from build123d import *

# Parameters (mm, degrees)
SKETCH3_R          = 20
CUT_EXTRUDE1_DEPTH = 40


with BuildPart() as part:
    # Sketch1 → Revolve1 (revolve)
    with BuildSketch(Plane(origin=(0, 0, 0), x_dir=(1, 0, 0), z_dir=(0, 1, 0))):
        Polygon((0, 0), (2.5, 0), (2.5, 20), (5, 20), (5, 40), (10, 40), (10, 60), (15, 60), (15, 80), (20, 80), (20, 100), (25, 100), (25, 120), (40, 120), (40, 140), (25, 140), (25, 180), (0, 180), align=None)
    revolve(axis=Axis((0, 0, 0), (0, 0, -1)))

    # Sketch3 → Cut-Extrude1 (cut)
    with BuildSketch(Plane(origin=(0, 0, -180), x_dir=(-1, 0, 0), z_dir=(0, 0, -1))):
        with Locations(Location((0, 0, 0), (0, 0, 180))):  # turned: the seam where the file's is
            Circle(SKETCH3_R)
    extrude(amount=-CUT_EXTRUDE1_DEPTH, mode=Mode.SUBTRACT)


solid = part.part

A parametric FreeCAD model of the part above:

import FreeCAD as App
import Part
import Sketcher
from FreeCAD import Vector


def add_polygon(sketch, points):
    """Adds a closed chain of lines whose ends are joined by coincident constraints."""
    first, n = sketch.GeometryCount, len(points)
    for a, b in zip(points, points[1:] + points[:1]):
        sketch.addGeometry(Part.LineSegment(App.Vector(*a, 0), App.Vector(*b, 0)), False)
    for i in range(n):
        sketch.addConstraint(Sketcher.Constraint("Coincident", first + i, 2, first + (i + 1) % n, 1))

doc = App.newDocument("Part")
body = doc.addObject("PartDesign::Body", "Body")

sketch1 = doc.addObject("Sketcher::SketchObject", "Sketch")
body.addObject(sketch1)
sketch1.AttachmentSupport = (doc.XZ_Plane, [""])
sketch1.MapMode = "FlatFace"
add_polygon(sketch1, [(0, 0), (2.5, 0), (2.5, -20), (5, -20), (5, -40), (10, -40), (10, -60), (15, -60), (15, -80), (20, -80), (20, -100), (25, -100), (25, -120), (40, -120), (40, -140), (25, -140), (25, -180), (0, -180)])
sketch1.addConstraint(Sketcher.Constraint("Horizontal", 0))
sketch1.addConstraint(Sketcher.Constraint("Vertical", 1))
sketch1.addConstraint(Sketcher.Constraint("Horizontal", 2))
sketch1.addConstraint(Sketcher.Constraint("Vertical", 3))
sketch1.addConstraint(Sketcher.Constraint("Horizontal", 4))
sketch1.addConstraint(Sketcher.Constraint("Vertical", 5))
sketch1.addConstraint(Sketcher.Constraint("Horizontal", 6))
sketch1.addConstraint(Sketcher.Constraint("Vertical", 7))
sketch1.addConstraint(Sketcher.Constraint("Horizontal", 8))
sketch1.addConstraint(Sketcher.Constraint("Vertical", 9))
sketch1.addConstraint(Sketcher.Constraint("Horizontal", 10))
sketch1.addConstraint(Sketcher.Constraint("Vertical", 11))
sketch1.addConstraint(Sketcher.Constraint("Horizontal", 12))
sketch1.addConstraint(Sketcher.Constraint("Vertical", 13))
sketch1.addConstraint(Sketcher.Constraint("Horizontal", 14))
sketch1.addConstraint(Sketcher.Constraint("Vertical", 15))
sketch1.addConstraint(Sketcher.Constraint("Horizontal", 16))
sketch1.addConstraint(Sketcher.Constraint("Vertical", 17))
sketch1.addConstraint(Sketcher.Constraint("Coincident", 17, 2, -1, 1))
sketch1.addConstraint(Sketcher.Constraint("Vertical", 11, 2, 14, 2))
sketch1.addConstraint(Sketcher.Constraint("Equal", 0, 2))
sketch1.addConstraint(Sketcher.Constraint("Equal", 4, 6))
sketch1.addConstraint(Sketcher.Constraint("Equal", 6, 8))
sketch1.addConstraint(Sketcher.Constraint("Equal", 8, 10))
sketch1.addConstraint(Sketcher.Constraint("Equal", 1, 3))
sketch1.addConstraint(Sketcher.Constraint("Equal", 3, 5))
sketch1.addConstraint(Sketcher.Constraint("Equal", 5, 7))
sketch1.addConstraint(Sketcher.Constraint("Equal", 7, 9))
sketch1.addConstraint(Sketcher.Constraint("Equal", 9, 11))
sketch1.addConstraint(Sketcher.Constraint("Equal", 11, 13))
sketch1.addConstraint(Sketcher.Constraint("DistanceX", 4, 1, 4, 2, 5.0))
sketch1.addConstraint(Sketcher.Constraint("DistanceX", 12, 1, 12, 2, 15.0))
sketch1.addConstraint(Sketcher.Constraint("DistanceX", 16, 2, 16, 1, 25.0))
sketch1.addConstraint(Sketcher.Constraint("DistanceY", 1, 2, 1, 1, 20.0))
sketch1.addConstraint(Sketcher.Constraint("DistanceY", 15, 2, 15, 1, 40.0))
revolution = doc.addObject("PartDesign::Revolution", "Revolution")
body.addObject(revolution)
revolution.Profile = sketch1
revolution.ReferenceAxis = (sketch1, ["V_Axis"])
revolution.Angle = 360

sketch2 = doc.addObject("Sketcher::SketchObject", "Sketch001")
body.addObject(sketch2)
sketch2.AttachmentSupport = (doc.XY_Plane, [""])
sketch2.MapMode = "FlatFace"
sketch2.AttachmentOffset = App.Placement(Vector(0, 0, -180), App.Rotation())
sketch2.addGeometry(Part.Circle(Vector(0, 0, 0), Vector(0, 0, 1), 20), False)
sketch2.addConstraint(Sketcher.Constraint("Coincident", 0, 3, -1, 1))
sketch2.addConstraint(Sketcher.Constraint("Diameter", 0, 40.0))
pocket1 = doc.addObject("PartDesign::Pocket", "Pocket")
body.addObject(pocket1)
pocket1.Profile = sketch2
pocket1.Length = 40
pocket1.Reversed = True

doc.recompute()
